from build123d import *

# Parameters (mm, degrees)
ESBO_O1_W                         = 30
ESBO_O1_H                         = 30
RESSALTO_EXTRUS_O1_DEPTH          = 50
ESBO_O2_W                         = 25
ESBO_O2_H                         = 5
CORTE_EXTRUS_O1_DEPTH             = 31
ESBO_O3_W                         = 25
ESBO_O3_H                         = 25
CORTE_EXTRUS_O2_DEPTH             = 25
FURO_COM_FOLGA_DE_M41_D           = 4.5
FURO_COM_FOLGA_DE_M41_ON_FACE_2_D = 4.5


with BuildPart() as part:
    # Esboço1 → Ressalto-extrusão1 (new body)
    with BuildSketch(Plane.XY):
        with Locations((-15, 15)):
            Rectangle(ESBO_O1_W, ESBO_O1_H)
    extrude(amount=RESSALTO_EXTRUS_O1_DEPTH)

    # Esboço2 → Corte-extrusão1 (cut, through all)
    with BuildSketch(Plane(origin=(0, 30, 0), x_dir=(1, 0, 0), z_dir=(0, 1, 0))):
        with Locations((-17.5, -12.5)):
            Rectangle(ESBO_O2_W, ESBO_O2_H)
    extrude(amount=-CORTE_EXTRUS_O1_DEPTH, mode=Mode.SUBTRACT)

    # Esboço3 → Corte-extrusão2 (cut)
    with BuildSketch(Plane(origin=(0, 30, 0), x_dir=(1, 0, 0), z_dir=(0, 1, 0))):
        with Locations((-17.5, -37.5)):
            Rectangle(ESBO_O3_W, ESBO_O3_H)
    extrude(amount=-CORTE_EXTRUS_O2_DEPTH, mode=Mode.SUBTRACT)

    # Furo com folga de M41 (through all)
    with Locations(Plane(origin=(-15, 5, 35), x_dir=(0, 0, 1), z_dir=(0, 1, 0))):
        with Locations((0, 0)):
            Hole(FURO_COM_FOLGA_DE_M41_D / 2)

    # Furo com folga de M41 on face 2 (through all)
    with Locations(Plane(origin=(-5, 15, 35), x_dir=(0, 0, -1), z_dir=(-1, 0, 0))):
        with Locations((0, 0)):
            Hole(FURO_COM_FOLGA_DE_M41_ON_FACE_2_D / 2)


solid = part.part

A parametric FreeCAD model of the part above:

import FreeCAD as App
import Part
import Sketcher

V = App.Vector


def add_polygon(sketch, points):
    """Adds a closed chain of lines whose ends are joined by coincident constraints."""
    first, n = sketch.GeometryCount, len(points)
    for a, b in zip(points, points[1:] + points[:1]):
        sketch.addGeometry(Part.LineSegment(App.Vector(*a, 0), App.Vector(*b, 0)), False)
    for i in range(n):
        sketch.addConstraint(Sketcher.Constraint("Coincident", first + i, 2, first + (i + 1) % n, 1))

doc = App.newDocument("Part")
params = doc.addObject("Spreadsheet::Sheet", "Params")
for row, (alias, value) in enumerate([
    ("sketch1_width", "30 mm"),
    ("pad1_length", "50 mm"),
    ("sketch2_width", "25 mm"),
    ("sketch2_height", "5 mm"),
    ("sketch3_width", "25 mm"),
    ("pocket2_length", "25 mm"),
    ("sketch4_diameter", "4.5 mm"),
    ("hole_diameter", "4.5 mm"),
    ("sketch5_diameter", "4.5 mm"),
    ("hole2_diameter", "4.5 mm"),
], start=1):
    params.set(f"A{row}", alias)
    params.set(f"B{row}", "=" + value)
    params.setAlias(f"B{row}", alias)

body = doc.addObject("PartDesign::Body", "Body")

sketch1 = body.newObject("Sketcher::SketchObject", "Sketch")
sketch1.AttachmentSupport = (doc.getObject("XY_Plane"), [""])
sketch1.MapMode = "FlatFace"
add_polygon(sketch1, [(-30, 30), (-30, 0), (0, 0), (0, 30)])
sketch1.addConstraint([
    Sketcher.Constraint("Vertical", 0),
    Sketcher.Constraint("Horizontal", 1),
    Sketcher.Constraint("Vertical", 2),
    Sketcher.Constraint("Horizontal", 3),
    Sketcher.Constraint("Coincident", 1, 2, -1, 1),
    Sketcher.Constraint("Equal", 3, 0),
    Sketcher.Constraint("DistanceX", 1, 1, 1, 2, 30.0),
])
sketch1.setExpression("Constraints[10]", "Params.sketch1_width")
pad1 = body.newObject("PartDesign::Pad", "Pad")
pad1.Profile = sketch1
pad1.setExpression("Length", "Params.pad1_length")

sketch2 = body.newObject("Sketcher::SketchObject", "Sketch001")
sketch2.AttachmentSupport = (doc.getObject("XZ_Plane"), [""])
sketch2.MapMode = "FlatFace"
sketch2.AttachmentOffset = App.Placement(V(0, 0, -30), App.Rotation())
add_polygon(sketch2, [(-30, 10), (-30, 15), (-5, 15), (-5, 10)])
sketch2.addConstraint([
    Sketcher.Constraint("Vertical", 0),
    Sketcher.Constraint("Horizontal", 1),
    Sketcher.Constraint("Vertical", 2),
    Sketcher.Constraint("Horizontal", 3),
    Sketcher.Constraint("DistanceX", 1, 1, 1, 2, 25.0),
    Sketcher.Constraint("DistanceY", 0, 1, 0, 2, 5.0),
    Sketcher.Constraint("DistanceX", 0, 2, -1, 1, 30.0),
    Sketcher.Constraint("DistanceY", -1, 1, 0, 2, 15.0),
])
sketch2.setExpression("Constraints[8]", "Params.sketch2_width")
sketch2.setExpression("Constraints[9]", "Params.sketch2_height")
pocket1 = body.newObject("PartDesign::Pocket", "Pocket")
pocket1.Profile = sketch2
pocket1.Type = "ThroughAll"
pocket1.Reversed = True

sketch3 = body.newObject("Sketcher::SketchObject", "Sketch002")
sketch3.AttachmentSupport = (doc.getObject("XZ_Plane"), [""])
sketch3.MapMode = "FlatFace"
sketch3.AttachmentOffset = App.Placement(V(0, 0, -30), App.Rotation())
add_polygon(sketch3, [(-30, 25), (-30, 50), (-5, 50), (-5, 25)])
sketch3.addConstraint([
    Sketcher.Constraint("Vertical", 0),
    Sketcher.Constraint("Horizontal", 1),
    Sketcher.Constraint("Vertical", 2),
    Sketcher.Constraint("Horizontal", 3),
    Sketcher.Constraint("Equal", 3, 0),
    Sketcher.Constraint("DistanceX", 1, 1, 1, 2, 25.0),
    Sketcher.Constraint("DistanceX", 0, 2, -1, 1, 30.0),
    Sketcher.Constraint("DistanceY", -1, 1, 0, 2, 50.0),
])
sketch3.setExpression("Constraints[9]", "Params.sketch3_width")
pocket2 = body.newObject("PartDesign::Pocket", "Pocket001")
pocket2.Profile = sketch3
pocket2.setExpression("Length", "Params.pocket2_length")
pocket2.Reversed = True

sketch4 = body.newObject("Sketcher::SketchObject", "Sketch003")
sketch4.AttachmentSupport = (doc.getObject("XZ_Plane"), [""])
sketch4.MapMode = "FlatFace"
sketch4.AttachmentOffset = App.Placement(V(0, 0, -5), App.Rotation())
sketch4.addGeometry(Part.Circle(V(-15, 35, 0), V(0, 0, 1), 2.2), False)
sketch4.addConstraint([
    Sketcher.Constraint("Diameter", 0, 4.5),
    Sketcher.Constraint("DistanceX", 0, 3, -1, 1, 15.0),
    Sketcher.Constraint("DistanceY", -1, 1, 0, 3, 35.0),
])
sketch4.setExpression("Constraints[0]", "Params.sketch4_diameter")
doc.recompute()
hole = body.newObject("PartDesign::Hole", "Hole")
hole.Profile = sketch4
hole.ThreadType = "None"
hole.setExpression("Diameter", "Params.hole_diameter")
hole.DepthType = "ThroughAll"
hole.Reversed = True

sketch5 = body.newObject("Sketcher::SketchObject", "Sketch004")
sketch5.AttachmentSupport = (doc.getObject("YZ_Plane"), [""])
sketch5.MapMode = "FlatFace"
sketch5.AttachmentOffset = App.Placement(V(0, 0, -5), App.Rotation())
sketch5.addGeometry(Part.Circle(V(15, 35, 0), V(0, 0, 1), 2.2), False)
sketch5.addConstraint([
    Sketcher.Constraint("Diameter", 0, 4.5),
    Sketcher.Constraint("DistanceX", -1, 1, 0, 3, 15.0),
    Sketcher.Constraint("DistanceY", -1, 1, 0, 3, 35.0),
])
sketch5.setExpression("Constraints[0]", "Params.sketch5_diameter")
doc.recompute()
hole2 = body.newObject("PartDesign::Hole", "Hole001")
hole2.Profile = sketch5
hole2.ThreadType = "None"
hole2.setExpression("Diameter", "Params.hole2_diameter")
hole2.DepthType = "ThroughAll"
hole2.Reversed = True

doc.recompute()
